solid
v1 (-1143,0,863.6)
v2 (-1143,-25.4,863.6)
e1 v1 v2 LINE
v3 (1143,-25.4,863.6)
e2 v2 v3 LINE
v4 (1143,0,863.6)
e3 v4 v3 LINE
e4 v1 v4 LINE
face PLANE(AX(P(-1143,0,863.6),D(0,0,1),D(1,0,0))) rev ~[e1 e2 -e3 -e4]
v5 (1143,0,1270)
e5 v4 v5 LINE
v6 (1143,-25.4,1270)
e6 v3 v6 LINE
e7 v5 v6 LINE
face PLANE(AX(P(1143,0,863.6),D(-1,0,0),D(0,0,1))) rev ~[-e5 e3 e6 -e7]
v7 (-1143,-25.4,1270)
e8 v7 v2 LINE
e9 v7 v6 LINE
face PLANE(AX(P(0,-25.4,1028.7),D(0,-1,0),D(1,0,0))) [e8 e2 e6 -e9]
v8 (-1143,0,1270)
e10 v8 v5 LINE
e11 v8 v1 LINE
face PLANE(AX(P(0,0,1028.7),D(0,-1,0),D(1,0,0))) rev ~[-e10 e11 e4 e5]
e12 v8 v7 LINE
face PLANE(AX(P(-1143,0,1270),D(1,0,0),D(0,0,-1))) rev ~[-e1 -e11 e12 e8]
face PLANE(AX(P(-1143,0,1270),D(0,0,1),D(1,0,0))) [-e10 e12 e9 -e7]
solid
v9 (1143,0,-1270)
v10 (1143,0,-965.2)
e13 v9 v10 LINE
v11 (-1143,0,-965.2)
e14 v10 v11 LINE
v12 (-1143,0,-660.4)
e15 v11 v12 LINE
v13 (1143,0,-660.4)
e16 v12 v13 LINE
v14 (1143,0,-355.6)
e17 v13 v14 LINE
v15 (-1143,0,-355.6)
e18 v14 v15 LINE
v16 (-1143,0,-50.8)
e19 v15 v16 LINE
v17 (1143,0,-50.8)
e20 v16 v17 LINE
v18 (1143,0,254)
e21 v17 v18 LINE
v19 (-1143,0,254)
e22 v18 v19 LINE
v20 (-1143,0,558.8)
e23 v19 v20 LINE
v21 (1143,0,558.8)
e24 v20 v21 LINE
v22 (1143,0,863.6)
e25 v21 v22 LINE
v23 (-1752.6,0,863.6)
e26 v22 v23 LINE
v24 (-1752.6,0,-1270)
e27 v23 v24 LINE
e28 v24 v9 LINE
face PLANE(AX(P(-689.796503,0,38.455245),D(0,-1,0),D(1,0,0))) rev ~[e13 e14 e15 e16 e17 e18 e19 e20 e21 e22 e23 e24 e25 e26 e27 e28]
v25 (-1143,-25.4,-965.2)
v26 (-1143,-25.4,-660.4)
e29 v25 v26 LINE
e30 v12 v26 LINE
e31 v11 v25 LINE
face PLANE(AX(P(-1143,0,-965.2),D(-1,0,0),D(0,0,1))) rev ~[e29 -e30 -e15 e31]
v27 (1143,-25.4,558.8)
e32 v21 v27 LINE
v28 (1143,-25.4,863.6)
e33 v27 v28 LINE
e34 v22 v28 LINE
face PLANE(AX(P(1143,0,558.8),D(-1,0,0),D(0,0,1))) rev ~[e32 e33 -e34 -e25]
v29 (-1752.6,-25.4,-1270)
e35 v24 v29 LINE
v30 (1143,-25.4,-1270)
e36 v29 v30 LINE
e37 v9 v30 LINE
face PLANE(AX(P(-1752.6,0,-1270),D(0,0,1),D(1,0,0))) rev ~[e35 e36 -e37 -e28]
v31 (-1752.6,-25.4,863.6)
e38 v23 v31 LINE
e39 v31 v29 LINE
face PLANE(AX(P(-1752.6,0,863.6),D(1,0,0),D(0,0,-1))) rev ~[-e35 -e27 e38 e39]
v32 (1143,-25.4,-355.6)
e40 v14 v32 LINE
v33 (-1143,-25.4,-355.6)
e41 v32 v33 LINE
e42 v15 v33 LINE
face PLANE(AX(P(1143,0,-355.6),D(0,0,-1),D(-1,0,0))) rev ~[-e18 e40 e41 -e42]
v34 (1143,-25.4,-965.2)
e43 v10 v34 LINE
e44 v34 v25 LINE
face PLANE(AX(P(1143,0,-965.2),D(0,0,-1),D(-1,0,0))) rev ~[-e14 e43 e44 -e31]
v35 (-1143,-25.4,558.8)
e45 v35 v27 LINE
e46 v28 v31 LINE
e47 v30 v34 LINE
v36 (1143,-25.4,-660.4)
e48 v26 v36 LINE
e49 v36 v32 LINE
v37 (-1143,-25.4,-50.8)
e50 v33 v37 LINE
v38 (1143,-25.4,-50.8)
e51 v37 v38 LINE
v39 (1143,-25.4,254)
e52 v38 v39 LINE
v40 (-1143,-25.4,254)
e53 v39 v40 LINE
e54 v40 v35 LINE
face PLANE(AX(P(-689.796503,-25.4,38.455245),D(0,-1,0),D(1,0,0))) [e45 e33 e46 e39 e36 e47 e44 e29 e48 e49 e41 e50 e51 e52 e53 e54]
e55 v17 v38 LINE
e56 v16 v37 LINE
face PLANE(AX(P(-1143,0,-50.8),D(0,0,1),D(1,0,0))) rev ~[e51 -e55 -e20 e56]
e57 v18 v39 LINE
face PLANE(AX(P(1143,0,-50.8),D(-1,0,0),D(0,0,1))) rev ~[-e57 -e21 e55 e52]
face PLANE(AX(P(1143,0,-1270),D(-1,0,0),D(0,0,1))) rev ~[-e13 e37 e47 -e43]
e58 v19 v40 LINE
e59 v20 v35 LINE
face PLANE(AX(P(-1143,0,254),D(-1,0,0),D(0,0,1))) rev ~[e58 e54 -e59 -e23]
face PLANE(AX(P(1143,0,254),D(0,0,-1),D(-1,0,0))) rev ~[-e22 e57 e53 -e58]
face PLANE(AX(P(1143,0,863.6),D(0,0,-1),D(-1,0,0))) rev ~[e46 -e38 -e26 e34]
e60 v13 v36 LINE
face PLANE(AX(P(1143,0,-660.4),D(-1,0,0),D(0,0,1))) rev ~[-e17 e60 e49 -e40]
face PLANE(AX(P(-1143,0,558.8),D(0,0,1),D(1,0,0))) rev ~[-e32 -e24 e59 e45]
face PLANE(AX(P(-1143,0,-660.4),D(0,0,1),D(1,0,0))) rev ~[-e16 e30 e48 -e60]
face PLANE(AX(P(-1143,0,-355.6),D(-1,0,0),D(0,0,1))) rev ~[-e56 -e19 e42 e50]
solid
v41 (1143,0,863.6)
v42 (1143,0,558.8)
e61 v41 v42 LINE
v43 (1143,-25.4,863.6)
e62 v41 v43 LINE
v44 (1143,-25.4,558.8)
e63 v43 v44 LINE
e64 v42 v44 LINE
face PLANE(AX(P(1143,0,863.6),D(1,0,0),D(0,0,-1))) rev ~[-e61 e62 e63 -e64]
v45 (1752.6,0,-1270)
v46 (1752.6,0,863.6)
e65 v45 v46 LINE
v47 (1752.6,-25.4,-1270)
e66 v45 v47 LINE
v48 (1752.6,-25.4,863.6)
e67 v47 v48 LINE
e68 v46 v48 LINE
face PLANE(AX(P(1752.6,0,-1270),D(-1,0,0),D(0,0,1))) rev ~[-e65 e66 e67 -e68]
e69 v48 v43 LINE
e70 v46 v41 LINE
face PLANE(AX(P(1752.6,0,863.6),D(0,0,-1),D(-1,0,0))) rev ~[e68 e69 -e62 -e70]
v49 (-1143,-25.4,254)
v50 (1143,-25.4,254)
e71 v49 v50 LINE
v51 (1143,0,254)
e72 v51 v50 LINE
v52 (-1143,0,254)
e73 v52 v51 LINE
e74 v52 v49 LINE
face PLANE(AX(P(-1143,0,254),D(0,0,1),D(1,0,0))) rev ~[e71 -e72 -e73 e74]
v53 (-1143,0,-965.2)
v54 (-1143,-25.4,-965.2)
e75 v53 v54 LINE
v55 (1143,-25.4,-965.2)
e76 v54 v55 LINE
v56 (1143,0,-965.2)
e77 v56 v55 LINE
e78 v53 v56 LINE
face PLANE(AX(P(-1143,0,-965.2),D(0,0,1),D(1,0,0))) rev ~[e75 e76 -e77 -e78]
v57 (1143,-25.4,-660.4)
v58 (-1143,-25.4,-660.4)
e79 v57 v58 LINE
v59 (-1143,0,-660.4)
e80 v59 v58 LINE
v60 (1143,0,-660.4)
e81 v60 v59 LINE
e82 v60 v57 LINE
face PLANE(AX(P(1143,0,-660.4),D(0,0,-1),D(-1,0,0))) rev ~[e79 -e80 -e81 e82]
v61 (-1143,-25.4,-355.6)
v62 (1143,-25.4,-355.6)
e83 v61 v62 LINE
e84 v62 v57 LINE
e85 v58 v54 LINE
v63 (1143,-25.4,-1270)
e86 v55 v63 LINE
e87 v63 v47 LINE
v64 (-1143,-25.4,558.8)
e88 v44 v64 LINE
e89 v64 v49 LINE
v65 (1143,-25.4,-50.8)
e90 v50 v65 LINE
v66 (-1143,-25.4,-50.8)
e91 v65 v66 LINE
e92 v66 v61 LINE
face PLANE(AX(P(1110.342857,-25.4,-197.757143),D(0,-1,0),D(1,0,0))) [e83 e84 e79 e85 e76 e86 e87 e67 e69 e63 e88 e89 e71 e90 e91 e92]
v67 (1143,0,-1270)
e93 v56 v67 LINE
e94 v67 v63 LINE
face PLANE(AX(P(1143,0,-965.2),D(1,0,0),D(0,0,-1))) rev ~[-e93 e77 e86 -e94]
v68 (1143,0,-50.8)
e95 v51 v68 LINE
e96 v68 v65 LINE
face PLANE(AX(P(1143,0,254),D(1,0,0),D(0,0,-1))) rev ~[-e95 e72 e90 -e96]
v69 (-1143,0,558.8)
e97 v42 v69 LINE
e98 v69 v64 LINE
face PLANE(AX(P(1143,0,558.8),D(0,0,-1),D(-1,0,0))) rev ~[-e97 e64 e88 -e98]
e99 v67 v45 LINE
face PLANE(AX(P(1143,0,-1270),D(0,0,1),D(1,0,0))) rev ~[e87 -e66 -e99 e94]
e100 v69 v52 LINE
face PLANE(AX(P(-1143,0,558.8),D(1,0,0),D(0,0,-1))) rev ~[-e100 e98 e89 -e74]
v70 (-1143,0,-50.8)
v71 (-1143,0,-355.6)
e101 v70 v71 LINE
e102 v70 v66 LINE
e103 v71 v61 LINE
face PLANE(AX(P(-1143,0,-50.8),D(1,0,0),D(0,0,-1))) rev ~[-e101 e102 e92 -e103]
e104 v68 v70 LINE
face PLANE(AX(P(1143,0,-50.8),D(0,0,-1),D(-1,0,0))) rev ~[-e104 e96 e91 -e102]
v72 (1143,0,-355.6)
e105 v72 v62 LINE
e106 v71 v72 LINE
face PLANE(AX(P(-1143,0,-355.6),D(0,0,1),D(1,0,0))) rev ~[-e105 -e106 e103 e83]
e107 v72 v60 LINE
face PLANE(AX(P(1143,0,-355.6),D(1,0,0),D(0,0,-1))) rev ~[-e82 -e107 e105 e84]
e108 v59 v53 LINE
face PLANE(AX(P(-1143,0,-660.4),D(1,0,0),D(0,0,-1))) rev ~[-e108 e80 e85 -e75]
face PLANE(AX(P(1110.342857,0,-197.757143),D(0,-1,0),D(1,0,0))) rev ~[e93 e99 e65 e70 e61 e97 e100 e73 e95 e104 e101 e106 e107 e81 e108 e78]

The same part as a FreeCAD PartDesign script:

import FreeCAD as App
import Part
import Sketcher
from FreeCAD import Vector
Q = App.Units.Quantity

doc = App.newDocument("Part")
body = doc.addObject("PartDesign::Body", "Body")

sketch1 = doc.addObject("Sketcher::SketchObject", "Sketch")
body.addObject(sketch1)
sketch1.AttachmentSupport = (doc.XZ_Plane, [""])
sketch1.MapMode = "FlatFace"
sketch1.addGeometry(Part.LineSegment(Vector(1143, 864, 0), Vector(-1753, 864, 0)), False)
sketch1.addGeometry(Part.LineSegment(Vector(-1753, 864, 0), Vector(-1753, -1270, 0)), False)
sketch1.addGeometry(Part.LineSegment(Vector(-1753, -1270, 0), Vector(1143, -1270, 0)), False)
sketch1.addGeometry(Part.LineSegment(Vector(1143, -1270, 0), Vector(1143, -965, 0)), False)
sketch1.addGeometry(Part.LineSegment(Vector(1143, -965, 0), Vector(-1143, -965, 0)), False)
sketch1.addGeometry(Part.LineSegment(Vector(-1143, -965, 0), Vector(-1143, -660, 0)), False)
sketch1.addGeometry(Part.LineSegment(Vector(-1143, -660, 0), Vector(1143, -660, 0)), False)
sketch1.addGeometry(Part.LineSegment(Vector(1143, -660, 0), Vector(1143, -356, 0)), False)
sketch1.addGeometry(Part.LineSegment(Vector(1143, -356, 0), Vector(-1143, -356, 0)), False)
sketch1.addGeometry(Part.LineSegment(Vector(-1143, -356, 0), Vector(-1143, -51, 0)), False)
sketch1.addGeometry(Part.LineSegment(Vector(-1143, -51, 0), Vector(1143, -51, 0)), False)
sketch1.addGeometry(Part.LineSegment(Vector(1143, -51, 0), Vector(1143, 254, 0)), False)
sketch1.addGeometry(Part.LineSegment(Vector(1143, 254, 0), Vector(-1143, 254, 0)), False)
sketch1.addGeometry(Part.LineSegment(Vector(-1143, 254, 0), Vector(-1143, 559, 0)), False)
sketch1.addGeometry(Part.LineSegment(Vector(-1143, 559, 0), Vector(1143, 559, 0)), False)
sketch1.addGeometry(Part.LineSegment(Vector(1143, 559, 0), Vector(1143, 864, 0)), False)
sketch1.addConstraint(Sketcher.Constraint("Coincident", 0, 2, 1, 1))
sketch1.addConstraint(Sketcher.Constraint("Coincident", 1, 2, 2, 1))
sketch1.addConstraint(Sketcher.Constraint("Coincident", 2, 2, 3, 1))
sketch1.addConstraint(Sketcher.Constraint("Coincident", 3, 2, 4, 1))
sketch1.addConstraint(Sketcher.Constraint("Coincident", 4, 2, 5, 1))
sketch1.addConstraint(Sketcher.Constraint("Coincident", 5, 2, 6, 1))
sketch1.addConstraint(Sketcher.Constraint("Coincident", 6, 2, 7, 1))
sketch1.addConstraint(Sketcher.Constraint("Coincident", 7, 2, 8, 1))
sketch1.addConstraint(Sketcher.Constraint("Coincident", 8, 2, 9, 1))
sketch1.addConstraint(Sketcher.Constraint("Coincident", 9, 2, 10, 1))
sketch1.addConstraint(Sketcher.Constraint("Coincident", 10, 2, 11, 1))
sketch1.addConstraint(Sketcher.Constraint("Coincident", 11, 2, 12, 1))
sketch1.addConstraint(Sketcher.Constraint("Coincident", 12, 2, 13, 1))
sketch1.addConstraint(Sketcher.Constraint("Coincident", 13, 2, 14, 1))
sketch1.addConstraint(Sketcher.Constraint("Coincident", 14, 2, 15, 1))
sketch1.addConstraint(Sketcher.Constraint("Coincident", 15, 2, 0, 1))
sketch1.addConstraint(Sketcher.Constraint("Horizontal", 0))
sketch1.addConstraint(Sketcher.Constraint("Vertical", 1))
sketch1.addConstraint(Sketcher.Constraint("Horizontal", 2))
sketch1.addConstraint(Sketcher.Constraint("Vertical", 3))
sketch1.addConstraint(Sketcher.Constraint("Horizontal", 4))
sketch1.addConstraint(Sketcher.Constraint("Vertical", 5))
sketch1.addConstraint(Sketcher.Constraint("Horizontal", 6))
sketch1.addConstraint(Sketcher.Constraint("Vertical", 7))
sketch1.addConstraint(Sketcher.Constraint("Horizontal", 8))
sketch1.addConstraint(Sketcher.Constraint("Vertical", 9))
sketch1.addConstraint(Sketcher.Constraint("Horizontal", 10))
sketch1.addConstraint(Sketcher.Constraint("Vertical", 11))
sketch1.addConstraint(Sketcher.Constraint("Horizontal", 12))
sketch1.addConstraint(Sketcher.Constraint("Vertical", 13))
sketch1.addConstraint(Sketcher.Constraint("Horizontal", 14))
sketch1.addConstraint(Sketcher.Constraint("Vertical", 15))
sketch1.addConstraint(Sketcher.Constraint("Vertical", 3, 2, 6, 2))
sketch1.addConstraint(Sketcher.Constraint("Vertical", 5, 2, 8, 2))
sketch1.addConstraint(Sketcher.Constraint("Vertical", 7, 2, 10, 2))
sketch1.addConstraint(Sketcher.Constraint("Vertical", 9, 2, 12, 2))
sketch1.addConstraint(Sketcher.Constraint("Vertical", 11, 2, 14, 2))
sketch1.addConstraint(Sketcher.Constraint("Equal", 3, 5))
sketch1.addConstraint(Sketcher.Constraint("Equal", 5, 7))
sketch1.addConstraint(Sketcher.Constraint("Equal", 7, 9))
sketch1.addConstraint(Sketcher.Constraint("Equal", 9, 11))
sketch1.addConstraint(Sketcher.Constraint("Equal", 11, 13))
sketch1.addConstraint(Sketcher.Constraint("Equal", 13, 15))
sketch1.addConstraint(Sketcher.Constraint("DistanceX", 0, 2, 0, 1, Q("114 in")))
sketch1.addConstraint(Sketcher.Constraint("DistanceX", 4, 2, 4, 1, Q("90 in")))
sketch1.addConstraint(Sketcher.Constraint("DistanceY", 1, 2, 1, 1, Q("84 in")))
sketch1.addConstraint(Sketcher.Constraint("DistanceX", 0, 2, -1, 1, Q("69 in")))
sketch1.addConstraint(Sketcher.Constraint("DistanceY", -1, 1, 0, 2, Q("34 in")))
pad1 = doc.addObject("PartDesign::Pad", "Pad")
body.addObject(pad1)
pad1.Profile = sketch1
pad1.Length = Q("1 in")
body2 = doc.addObject("PartDesign::Body", "Body001")

sketch2 = doc.addObject("Sketcher::SketchObject", "Sketch001")
body2.addObject(sketch2)
sketch2.AttachmentSupport = (doc.getObject("XZ_Plane001"), [""])
sketch2.MapMode = "FlatFace"
sketch2.addGeometry(Part.LineSegment(Vector(1753, 864, 0), Vector(1143, 864, 0)), False)
sketch2.addGeometry(Part.LineSegment(Vector(1143, 864, 0), Vector(1143, 559, 0)), False)
sketch2.addGeometry(Part.LineSegment(Vector(1143, 559, 0), Vector(-1143, 559, 0)), False)
sketch2.addGeometry(Part.LineSegment(Vector(-1143, 559, 0), Vector(-1143, 254, 0)), False)
sketch2.addGeometry(Part.LineSegment(Vector(-1143, 254, 0), Vector(1143, 254, 0)), False)
sketch2.addGeometry(Part.LineSegment(Vector(1143, 254, 0), Vector(1143, -51, 0)), False)
sketch2.addGeometry(Part.LineSegment(Vector(1143, -51, 0), Vector(-1143, -51, 0)), False)
sketch2.addGeometry(Part.LineSegment(Vector(-1143, -51, 0), Vector(-1143, -356, 0)), False)
sketch2.addGeometry(Part.LineSegment(Vector(-1143, -356, 0), Vector(1143, -356, 0)), False)
sketch2.addGeometry(Part.LineSegment(Vector(1143, -356, 0), Vector(1143, -660, 0)), False)
sketch2.addGeometry(Part.LineSegment(Vector(1143, -660, 0), Vector(-1143, -660, 0)), False)
sketch2.addGeometry(Part.LineSegment(Vector(-1143, -660, 0), Vector(-1143, -965, 0)), False)
sketch2.addGeometry(Part.LineSegment(Vector(-1143, -965, 0), Vector(1143, -965, 0)), False)
sketch2.addGeometry(Part.LineSegment(Vector(1143, -965, 0), Vector(1143, -1270, 0)), False)
sketch2.addGeometry(Part.LineSegment(Vector(1143, -1270, 0), Vector(1753, -1270, 0)), False)
sketch2.addGeometry(Part.LineSegment(Vector(1753, -1270, 0), Vector(1753, 864, 0)), False)
sketch2.addConstraint(Sketcher.Constraint("Coincident", 0, 2, 1, 1))
sketch2.addConstraint(Sketcher.Constraint("Coincident", 1, 2, 2, 1))
sketch2.addConstraint(Sketcher.Constraint("Coincident", 2, 2, 3, 1))
sketch2.addConstraint(Sketcher.Constraint("Coincident", 3, 2, 4, 1))
sketch2.addConstraint(Sketcher.Constraint("Coincident", 4, 2, 5, 1))
sketch2.addConstraint(Sketcher.Constraint("Coincident", 5, 2, 6, 1))
sketch2.addConstraint(Sketcher.Constraint("Coincident", 6, 2, 7, 1))
sketch2.addConstraint(Sketcher.Constraint("Coincident", 7, 2, 8, 1))
sketch2.addConstraint(Sketcher.Constraint("Coincident", 8, 2, 9, 1))
sketch2.addConstraint(Sketcher.Constraint("Coincident", 9, 2, 10, 1))
sketch2.addConstraint(Sketcher.Constraint("Coincident", 10, 2, 11, 1))
sketch2.addConstraint(Sketcher.Constraint("Coincident", 11, 2, 12, 1))
sketch2.addConstraint(Sketcher.Constraint("Coincident", 12, 2, 13, 1))
sketch2.addConstraint(Sketcher.Constraint("Coincident", 13, 2, 14, 1))
sketch2.addConstraint(Sketcher.Constraint("Coincident", 14, 2, 15, 1))
sketch2.addConstraint(Sketcher.Constraint("Coincident", 15, 2, 0, 1))
sketch2.addConstraint(Sketcher.Constraint("Horizontal", 0))
sketch2.addConstraint(Sketcher.Constraint("Vertical", 1))
sketch2.addConstraint(Sketcher.Constraint("Horizontal", 2))
sketch2.addConstraint(Sketcher.Constraint("Vertical", 3))
sketch2.addConstraint(Sketcher.Constraint("Horizontal", 4))
sketch2.addConstraint(Sketcher.Constraint("Vertical", 5))
sketch2.addConstraint(Sketcher.Constraint("Horizontal", 6))
sketch2.addConstraint(Sketcher.Constraint("Vertical", 7))
sketch2.addConstraint(Sketcher.Constraint("Horizontal", 8))
sketch2.addConstraint(Sketcher.Constraint("Vertical", 9))
sketch2.addConstraint(Sketcher.Constraint("Horizontal", 10))
sketch2.addConstraint(Sketcher.Constraint("Vertical", 11))
sketch2.addConstraint(Sketcher.Constraint("Horizontal", 12))
sketch2.addConstraint(Sketcher.Constraint("Vertical", 13))
sketch2.addConstraint(Sketcher.Constraint("Horizontal", 14))
sketch2.addConstraint(Sketcher.Constraint("Vertical", 15))
sketch2.addConstraint(Sketcher.Constraint("Vertical", 1, 2, 4, 2))
sketch2.addConstraint(Sketcher.Constraint("Vertical", 3, 2, 6, 2))
sketch2.addConstraint(Sketcher.Constraint("Vertical", 5, 2, 8, 2))
sketch2.addConstraint(Sketcher.Constraint("Vertical", 7, 2, 10, 2))
sketch2.addConstraint(Sketcher.Constraint("Vertical", 9, 2, 12, 2))
sketch2.addConstraint(Sketcher.Constraint("Equal", 1, 3))
sketch2.addConstraint(Sketcher.Constraint("Equal", 3, 5))
sketch2.addConstraint(Sketcher.Constraint("Equal", 5, 7))
sketch2.addConstraint(Sketcher.Constraint("Equal", 7, 9))
sketch2.addConstraint(Sketcher.Constraint("Equal", 9, 11))
sketch2.addConstraint(Sketcher.Constraint("Equal", 11, 13))
sketch2.addConstraint(Sketcher.Constraint("DistanceX", 0, 2, 0, 1, Q("24 in")))
sketch2.addConstraint(Sketcher.Constraint("DistanceX", 2, 2, 2, 1, Q("90 in")))
sketch2.addConstraint(Sketcher.Constraint("DistanceY", 1, 2, 1, 1, Q("12 in")))
sketch2.addConstraint(Sketcher.Constraint("DistanceX", -1, 1, 0, 2, Q("45 in")))
sketch2.addConstraint(Sketcher.Constraint("DistanceY", -1, 1, 0, 2, Q("34 in")))
pad2 = doc.addObject("PartDesign::Pad", "Pad001")
body2.addObject(pad2)
pad2.Profile = sketch2
pad2.Length = Q("1 in")
body3 = doc.addObject("PartDesign::Body", "Body002")

sketch3 = doc.addObject("Sketcher::SketchObject", "Sketch002")
body3.addObject(sketch3)
sketch3.AttachmentSupport = (doc.getObject("XZ_Plane002"), [""])
sketch3.MapMode = "FlatFace"
sketch3.addGeometry(Part.LineSegment(Vector(1143, 1270, 0), Vector(-1143, 1270, 0)), False)
sketch3.addGeometry(Part.LineSegment(Vector(-1143, 1270, 0), Vector(-1143, 864, 0)), False)
sketch3.addGeometry(Part.LineSegment(Vector(-1143, 864, 0), Vector(1143, 864, 0)), False)
sketch3.addGeometry(Part.LineSegment(Vector(1143, 864, 0), Vector(1143, 1270, 0)), False)
sketch3.addConstraint(Sketcher.Constraint("Coincident", 0, 2, 1, 1))
sketch3.addConstraint(Sketcher.Constraint("Coincident", 1, 2, 2, 1))
sketch3.addConstraint(Sketcher.Constraint("Coincident", 2, 2, 3, 1))
sketch3.addConstraint(Sketcher.Constraint("Coincident", 3, 2, 0, 1))
sketch3.addConstraint(Sketcher.Constraint("Horizontal", 0))
sketch3.addConstraint(Sketcher.Constraint("Vertical", 1))
sketch3.addConstraint(Sketcher.Constraint("Horizontal", 2))
sketch3.addConstraint(Sketcher.Constraint("Vertical", 3))
sketch3.addConstraint(Sketcher.Constraint("DistanceX", 0, 2, 0, 1, Q("90 in")))
sketch3.addConstraint(Sketcher.Constraint("DistanceY", 1, 2, 1, 1, Q("16 in")))
sketch3.addConstraint(Sketcher.Constraint("DistanceX", 0, 2, -1, 1, Q("45 in")))
sketch3.addConstraint(Sketcher.Constraint("DistanceY", -1, 1, 0, 2, Q("50 in")))
pad3 = doc.addObject("PartDesign::Pad", "Pad002")
body3.addObject(pad3)
pad3.Profile = sketch3
pad3.Length = Q("1 in")

doc.recompute()
